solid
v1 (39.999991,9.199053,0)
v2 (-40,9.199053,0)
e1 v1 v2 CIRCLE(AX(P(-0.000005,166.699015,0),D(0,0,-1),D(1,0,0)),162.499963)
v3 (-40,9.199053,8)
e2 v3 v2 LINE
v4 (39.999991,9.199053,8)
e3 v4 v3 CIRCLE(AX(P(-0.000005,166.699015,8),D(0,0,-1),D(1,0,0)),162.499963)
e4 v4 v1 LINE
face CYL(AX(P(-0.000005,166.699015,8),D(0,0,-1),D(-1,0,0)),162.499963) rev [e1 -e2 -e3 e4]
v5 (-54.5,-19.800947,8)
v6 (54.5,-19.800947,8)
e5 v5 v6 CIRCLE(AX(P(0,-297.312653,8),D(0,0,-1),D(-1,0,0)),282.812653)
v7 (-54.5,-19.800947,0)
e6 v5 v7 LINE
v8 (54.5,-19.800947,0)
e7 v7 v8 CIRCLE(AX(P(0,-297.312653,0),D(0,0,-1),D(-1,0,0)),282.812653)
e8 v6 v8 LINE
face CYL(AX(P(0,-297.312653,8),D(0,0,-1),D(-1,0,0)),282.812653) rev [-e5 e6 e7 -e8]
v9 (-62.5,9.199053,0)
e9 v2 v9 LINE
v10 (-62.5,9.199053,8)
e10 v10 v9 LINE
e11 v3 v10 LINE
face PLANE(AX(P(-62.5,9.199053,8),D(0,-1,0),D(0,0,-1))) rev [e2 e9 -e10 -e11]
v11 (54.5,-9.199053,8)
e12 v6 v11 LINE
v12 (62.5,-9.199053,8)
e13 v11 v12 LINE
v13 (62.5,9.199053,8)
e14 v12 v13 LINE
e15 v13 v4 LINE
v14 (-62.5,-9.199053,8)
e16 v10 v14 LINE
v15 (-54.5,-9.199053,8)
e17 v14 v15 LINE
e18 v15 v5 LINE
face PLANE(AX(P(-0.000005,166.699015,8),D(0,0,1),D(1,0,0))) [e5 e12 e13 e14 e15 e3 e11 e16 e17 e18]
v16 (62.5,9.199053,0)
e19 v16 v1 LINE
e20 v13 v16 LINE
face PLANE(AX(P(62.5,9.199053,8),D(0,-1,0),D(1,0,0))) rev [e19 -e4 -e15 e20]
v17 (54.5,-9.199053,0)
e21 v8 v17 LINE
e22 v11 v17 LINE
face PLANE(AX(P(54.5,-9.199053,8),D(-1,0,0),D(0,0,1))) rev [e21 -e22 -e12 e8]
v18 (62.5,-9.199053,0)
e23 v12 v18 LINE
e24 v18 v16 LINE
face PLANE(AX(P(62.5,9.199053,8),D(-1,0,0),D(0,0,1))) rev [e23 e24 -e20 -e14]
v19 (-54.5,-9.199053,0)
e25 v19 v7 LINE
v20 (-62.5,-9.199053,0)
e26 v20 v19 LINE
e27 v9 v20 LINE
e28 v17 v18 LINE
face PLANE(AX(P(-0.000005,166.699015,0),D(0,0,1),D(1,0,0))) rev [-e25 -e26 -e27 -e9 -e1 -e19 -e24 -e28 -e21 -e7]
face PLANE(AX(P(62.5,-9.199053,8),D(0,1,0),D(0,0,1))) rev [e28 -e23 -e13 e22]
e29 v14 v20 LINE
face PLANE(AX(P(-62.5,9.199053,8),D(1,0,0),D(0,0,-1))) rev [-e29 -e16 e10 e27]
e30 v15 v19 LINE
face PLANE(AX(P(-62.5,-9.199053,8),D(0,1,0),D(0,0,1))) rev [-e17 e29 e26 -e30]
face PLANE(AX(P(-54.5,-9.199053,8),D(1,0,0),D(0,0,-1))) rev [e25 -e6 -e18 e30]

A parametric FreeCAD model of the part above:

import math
import FreeCAD as App
import Part
import Sketcher

V = App.Vector
Q = App.Units.Quantity

doc = App.newDocument("Part")
params = doc.addObject("Spreadsheet::Sheet", "Params")
for row, (alias, value) in enumerate([
    ("sketch1_width", "8 mm"),
    ("sketch1_width2", "22.5 mm"),
    ("pad1_length", "8 mm"),
], start=1):
    params.set(f"A{row}", alias)
    params.set(f"B{row}", "=" + value)
    params.setAlias(f"B{row}", alias)

body = doc.addObject("PartDesign::Body", "Body")

sketch1 = body.newObject("Sketcher::SketchObject", "Sketch")
sketch1.AttachmentSupport = (doc.getObject("XY_Plane"), [""])
sketch1.MapMode = "FlatFace"
sketch1.addGeometry(Part.LineSegment(V(-62, 9, 0), V(-62, -9, 0)), False)
sketch1.addGeometry(Part.LineSegment(V(-62, -9, 0), V(-54, -9, 0)), False)
sketch1.addGeometry(Part.LineSegment(V(-54, -9, 0), V(-54, -20, 0)), False)
sketch1.addGeometry(Part.ArcOfCircle(Part.Circle(V(0, -297, 0), V(0, 0, 1), 283), math.radians(79), math.radians(101)), False)
sketch1.addGeometry(Part.LineSegment(V(54, -20, 0), V(54, -9, 0)), False)
sketch1.addGeometry(Part.LineSegment(V(54, -9, 0), V(62, -9, 0)), False)
sketch1.addGeometry(Part.LineSegment(V(62, -9, 0), V(62, 9, 0)), False)
sketch1.addGeometry(Part.LineSegment(V(62, 9, 0), V(40, 9, 0)), False)
sketch1.addGeometry(Part.ArcOfCircle(Part.Circle(V(0, 167, 0), V(0, 0, 1), 162), math.radians(-104), math.radians(-76)), False)
sketch1.addGeometry(Part.LineSegment(V(-40, 9, 0), V(-62, 9, 0)), False)
sketch1.addConstraint(Sketcher.Constraint("Coincident", 0, 2, 1, 1))
sketch1.addConstraint(Sketcher.Constraint("Coincident", 1, 2, 2, 1))
sketch1.addConstraint(Sketcher.Constraint("Coincident", 2, 2, 3, 2))
sketch1.addConstraint(Sketcher.Constraint("Coincident", 3, 1, 4, 1))
sketch1.addConstraint(Sketcher.Constraint("Coincident", 4, 2, 5, 1))
sketch1.addConstraint(Sketcher.Constraint("Coincident", 5, 2, 6, 1))
sketch1.addConstraint(Sketcher.Constraint("Coincident", 6, 2, 7, 1))
sketch1.addConstraint(Sketcher.Constraint("Coincident", 7, 2, 8, 2))
sketch1.addConstraint(Sketcher.Constraint("Coincident", 8, 1, 9, 1))
sketch1.addConstraint(Sketcher.Constraint("Coincident", 9, 2, 0, 1))
sketch1.addConstraint(Sketcher.Constraint("Vertical", 0))
sketch1.addConstraint(Sketcher.Constraint("Horizontal", 1))
sketch1.addConstraint(Sketcher.Constraint("Vertical", 2))
sketch1.addConstraint(Sketcher.Constraint("Vertical", 4))
sketch1.addConstraint(Sketcher.Constraint("Horizontal", 5))
sketch1.addConstraint(Sketcher.Constraint("Vertical", 6))
sketch1.addConstraint(Sketcher.Constraint("Horizontal", 7))
sketch1.addConstraint(Sketcher.Constraint("Horizontal", 9))
sketch1.addConstraint(Sketcher.Constraint("Symmetric", 0, 2, 6, 2, -1, 1))
sketch1.addConstraint(Sketcher.Constraint("Symmetric", 2, 2, 3, 1, -2))
sketch1.addConstraint(Sketcher.Constraint("Symmetric", 7, 2, 8, 1, -2))
sketch1.addConstraint(Sketcher.Constraint("Horizontal", 1, 2, 4, 2))
sketch1.addConstraint(Sketcher.Constraint("DistanceX", 1, 1, 1, 2, Q("8 mm")))
sketch1.addConstraint(Sketcher.Constraint("DistanceX", 9, 2, 9, 1, Q("22.5 mm")))
sketch1.addConstraint(Sketcher.Constraint("DistanceX", 1, 2, 4, 2, Q("109 mm")))
sketch1.addConstraint(Sketcher.Constraint("DistanceY", 3, 1, 6, 2, Q("29 mm")))
sketch1.addConstraint(Sketcher.Constraint("Radius", 3, Q("282.812653 mm")))
sketch1.addConstraint(Sketcher.Constraint("Radius", 8, Q("162.499963 mm")))
sketch1.addConstraint(Sketcher.Constraint("DistanceY", 3, 3, 0, 2, Q("288.1136 mm")))
sketch1.setExpression("Constraints[22]", "Params.sketch1_width")
sketch1.setExpression("Constraints[23]", "Params.sketch1_width2")
pad1 = body.newObject("PartDesign::Pad", "Pad")
pad1.Profile = sketch1
pad1.setExpression("Length", "Params.pad1_length")

doc.recompute()
